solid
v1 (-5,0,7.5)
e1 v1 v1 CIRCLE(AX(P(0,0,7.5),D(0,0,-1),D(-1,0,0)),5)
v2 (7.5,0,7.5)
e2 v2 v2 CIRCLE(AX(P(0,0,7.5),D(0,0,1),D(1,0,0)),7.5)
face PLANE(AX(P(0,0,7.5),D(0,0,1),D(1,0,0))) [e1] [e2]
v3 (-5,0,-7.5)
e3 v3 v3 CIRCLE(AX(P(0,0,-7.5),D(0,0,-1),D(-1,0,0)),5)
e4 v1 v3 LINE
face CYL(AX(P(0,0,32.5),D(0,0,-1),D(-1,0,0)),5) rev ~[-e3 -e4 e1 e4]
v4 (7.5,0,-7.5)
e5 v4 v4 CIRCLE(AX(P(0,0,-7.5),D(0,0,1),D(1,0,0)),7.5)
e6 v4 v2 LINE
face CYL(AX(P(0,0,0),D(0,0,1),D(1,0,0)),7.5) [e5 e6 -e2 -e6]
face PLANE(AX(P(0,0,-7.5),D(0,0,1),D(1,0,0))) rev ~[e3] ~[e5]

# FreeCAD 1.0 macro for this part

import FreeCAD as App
import Part
import Sketcher

doc = App.newDocument("Part")
body = doc.addObject("PartDesign::Body", "Body")

# Sketch on XY plane
sketch1 = body.newObject("Sketcher::SketchObject", "Sketch")
sketch1.AttachmentSupport = (doc.getObject("XY_Plane"), [""])
sketch1.MapMode = "FlatFace"
sketch1.addGeometry(Part.Circle(App.Vector(0, 0, 0), App.Vector(0, 0, 1), 8), False)
sketch1.addConstraint(Sketcher.Constraint("Coincident", 0, 3, -1, 1))
sketch1.addConstraint(Sketcher.Constraint("Diameter", 0, 15.0))
pad1 = body.newObject("PartDesign::Pad", "Pad")
pad1.Profile = sketch1
pad1.Length = 15
pad1.Midplane = True

# Sketch on XY plane
sketch2 = body.newObject("Sketcher::SketchObject", "Sketch001")
sketch2.AttachmentSupport = (doc.getObject("XY_Plane"), [""])
sketch2.MapMode = "FlatFace"
sketch2.AttachmentOffset = App.Placement(App.Vector(0, 0, 7.5), App.Rotation())
sketch2.addGeometry(Part.Circle(App.Vector(0, 0, 0), App.Vector(0, 0, 1), 5), False)
sketch2.addConstraint(Sketcher.Constraint("Coincident", 0, 3, -1, 1))
sketch2.addConstraint(Sketcher.Constraint("Diameter", 0, 10.0))
doc.recompute()
hole = body.newObject("PartDesign::Hole", "Hole")
hole.Profile = sketch2
hole.ThreadType = "None"
hole.Diameter = 10
hole.DepthType = "Dimension"
hole.Depth = 25
hole.DrillPoint = "Flat"

doc.recompute()
